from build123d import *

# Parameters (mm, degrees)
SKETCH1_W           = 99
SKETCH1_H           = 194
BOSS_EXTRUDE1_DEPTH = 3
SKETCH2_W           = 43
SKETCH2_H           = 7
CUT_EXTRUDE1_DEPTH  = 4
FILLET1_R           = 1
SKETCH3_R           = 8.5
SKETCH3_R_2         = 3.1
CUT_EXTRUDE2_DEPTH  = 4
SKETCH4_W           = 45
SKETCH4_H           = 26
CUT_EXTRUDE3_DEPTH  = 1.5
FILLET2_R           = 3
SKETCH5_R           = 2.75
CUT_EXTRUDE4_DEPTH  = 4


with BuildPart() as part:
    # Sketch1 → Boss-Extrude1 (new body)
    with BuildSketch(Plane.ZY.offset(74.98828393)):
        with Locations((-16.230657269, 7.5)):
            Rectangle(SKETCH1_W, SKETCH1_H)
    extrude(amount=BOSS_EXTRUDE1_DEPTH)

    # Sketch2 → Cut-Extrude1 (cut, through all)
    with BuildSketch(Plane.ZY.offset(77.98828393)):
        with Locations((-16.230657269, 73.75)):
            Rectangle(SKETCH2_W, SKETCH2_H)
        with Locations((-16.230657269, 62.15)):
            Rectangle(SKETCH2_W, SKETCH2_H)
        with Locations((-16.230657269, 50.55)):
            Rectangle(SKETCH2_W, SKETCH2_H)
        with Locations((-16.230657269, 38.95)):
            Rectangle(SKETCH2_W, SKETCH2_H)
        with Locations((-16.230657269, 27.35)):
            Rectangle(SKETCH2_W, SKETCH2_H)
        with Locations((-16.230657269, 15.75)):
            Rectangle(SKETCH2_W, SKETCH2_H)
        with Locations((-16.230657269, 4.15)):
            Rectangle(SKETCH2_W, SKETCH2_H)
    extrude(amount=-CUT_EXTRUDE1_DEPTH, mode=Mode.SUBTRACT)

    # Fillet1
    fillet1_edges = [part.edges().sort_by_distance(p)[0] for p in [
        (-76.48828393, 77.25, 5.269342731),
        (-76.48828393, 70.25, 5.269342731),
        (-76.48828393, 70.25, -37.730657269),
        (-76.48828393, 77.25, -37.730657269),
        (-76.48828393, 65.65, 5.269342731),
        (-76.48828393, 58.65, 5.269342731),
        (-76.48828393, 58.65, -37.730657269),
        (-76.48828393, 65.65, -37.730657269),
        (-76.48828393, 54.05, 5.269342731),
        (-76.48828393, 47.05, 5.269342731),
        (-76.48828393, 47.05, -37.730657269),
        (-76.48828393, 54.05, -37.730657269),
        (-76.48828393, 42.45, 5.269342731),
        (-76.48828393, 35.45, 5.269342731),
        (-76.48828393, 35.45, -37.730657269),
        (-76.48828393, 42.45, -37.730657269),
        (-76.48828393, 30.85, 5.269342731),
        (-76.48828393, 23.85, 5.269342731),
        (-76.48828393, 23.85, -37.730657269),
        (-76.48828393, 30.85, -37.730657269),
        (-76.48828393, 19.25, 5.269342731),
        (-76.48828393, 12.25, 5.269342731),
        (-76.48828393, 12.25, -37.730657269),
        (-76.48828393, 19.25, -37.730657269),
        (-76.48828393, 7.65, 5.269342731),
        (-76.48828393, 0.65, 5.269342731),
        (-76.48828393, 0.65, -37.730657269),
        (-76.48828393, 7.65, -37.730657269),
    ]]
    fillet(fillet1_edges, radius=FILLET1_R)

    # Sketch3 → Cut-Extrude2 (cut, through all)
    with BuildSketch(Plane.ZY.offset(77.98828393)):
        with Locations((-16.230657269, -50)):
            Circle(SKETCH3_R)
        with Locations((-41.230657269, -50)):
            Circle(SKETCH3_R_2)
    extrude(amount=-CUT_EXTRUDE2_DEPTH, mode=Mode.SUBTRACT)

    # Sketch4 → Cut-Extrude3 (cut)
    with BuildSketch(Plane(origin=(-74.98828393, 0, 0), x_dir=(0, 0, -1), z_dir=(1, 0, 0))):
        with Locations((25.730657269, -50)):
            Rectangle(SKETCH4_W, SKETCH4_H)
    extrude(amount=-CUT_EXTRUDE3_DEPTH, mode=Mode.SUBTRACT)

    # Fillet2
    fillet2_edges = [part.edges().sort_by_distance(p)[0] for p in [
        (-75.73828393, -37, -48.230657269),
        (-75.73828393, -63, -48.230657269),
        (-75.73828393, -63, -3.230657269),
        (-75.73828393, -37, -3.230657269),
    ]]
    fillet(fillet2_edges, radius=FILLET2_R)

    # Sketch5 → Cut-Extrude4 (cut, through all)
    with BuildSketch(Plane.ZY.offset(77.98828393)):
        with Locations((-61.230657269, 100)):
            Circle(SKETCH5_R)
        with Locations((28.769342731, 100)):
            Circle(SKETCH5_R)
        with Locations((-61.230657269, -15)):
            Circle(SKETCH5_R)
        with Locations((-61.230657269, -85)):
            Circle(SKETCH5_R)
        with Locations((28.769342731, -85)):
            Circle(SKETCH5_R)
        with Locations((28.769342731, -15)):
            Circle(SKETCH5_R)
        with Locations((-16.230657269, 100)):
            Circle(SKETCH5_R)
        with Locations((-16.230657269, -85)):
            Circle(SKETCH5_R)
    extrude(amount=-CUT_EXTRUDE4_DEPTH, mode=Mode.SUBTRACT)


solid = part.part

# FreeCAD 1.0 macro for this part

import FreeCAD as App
import Part
import Sketcher
from FreeCAD import Vector


def edges_at(feature, points):
    """Names of the edges that pass closest to the given points."""
    edges = feature.Shape.Edges
    near = lambda p: min(range(len(edges)), key=lambda i: edges[i].distToShape(Part.Vertex(*p))[0])
    return sorted({f"Edge{near(p) + 1}" for p in points})


def add_polygon(sketch, points):
    """Adds a closed chain of lines whose ends are joined by coincident constraints."""
    first, n = sketch.GeometryCount, len(points)
    for a, b in zip(points, points[1:] + points[:1]):
        sketch.addGeometry(Part.LineSegment(App.Vector(*a, 0), App.Vector(*b, 0)), False)
    for i in range(n):
        sketch.addConstraint(Sketcher.Constraint("Coincident", first + i, 2, first + (i + 1) % n, 1))

doc = App.newDocument("Part")
body = doc.addObject("PartDesign::Body", "Body")

sketch1 = doc.addObject("Sketcher::SketchObject", "Sketch")
body.addObject(sketch1)
sketch1.AttachmentSupport = (doc.YZ_Plane, [""])
sketch1.MapMode = "FlatFace"
sketch1.AttachmentOffset = App.Placement(Vector(0, 0, -74.988284), App.Rotation())
add_polygon(sketch1, [(104, -66), (-90, -66), (-90, 33), (104, 33)])
sketch1.addConstraint([
    Sketcher.Constraint("Horizontal", 0),
    Sketcher.Constraint("Vertical", 1),
    Sketcher.Constraint("Horizontal", 2),
    Sketcher.Constraint("Vertical", 3),
    Sketcher.Constraint("DistanceX", 0, 2, 0, 1, 194.0),
    Sketcher.Constraint("DistanceY", 1, 1, 1, 2, 99.0),
    Sketcher.Constraint("DistanceX", 0, 2, -1, 1, 89.5),
    Sketcher.Constraint("DistanceY", 0, 2, -1, 1, 65.730657),
])
pad1 = doc.addObject("PartDesign::Pad", "Pad")
body.addObject(pad1)
pad1.Profile = sketch1
pad1.Length = 3
pad1.Reversed = True

sketch2 = doc.addObject("Sketcher::SketchObject", "Sketch001")
body.addObject(sketch2)
sketch2.AttachmentSupport = (doc.YZ_Plane, [""])
sketch2.MapMode = "FlatFace"
sketch2.AttachmentOffset = App.Placement(Vector(0, 0, -77.988284), App.Rotation())
add_polygon(sketch2, [(77, -38), (70, -38), (70, 5), (77, 5)])
add_polygon(sketch2, [(66, -38), (59, -38), (59, 5), (66, 5)])
add_polygon(sketch2, [(54, -38), (47, -38), (47, 5), (54, 5)])
add_polygon(sketch2, [(42, -38), (35, -38), (35, 5), (42, 5)])
add_polygon(sketch2, [(31, -38), (24, -38), (24, 5), (31, 5)])
add_polygon(sketch2, [(19, -38), (12, -38), (12, 5), (19, 5)])
add_polygon(sketch2, [(8, -38), (1, -38), (1, 5), (8, 5)])
sketch2.addConstraint([
    Sketcher.Constraint("Horizontal", 0),
    Sketcher.Constraint("Vertical", 1),
    Sketcher.Constraint("Horizontal", 2),
    Sketcher.Constraint("Vertical", 3),
    Sketcher.Constraint("Horizontal", 4),
    Sketcher.Constraint("Vertical", 5),
    Sketcher.Constraint("Horizontal", 6),
    Sketcher.Constraint("Vertical", 7),
    Sketcher.Constraint("Horizontal", 8),
    Sketcher.Constraint("Vertical", 9),
    Sketcher.Constraint("Horizontal", 10),
    Sketcher.Constraint("Vertical", 11),
    Sketcher.Constraint("Horizontal", 12),
    Sketcher.Constraint("Vertical", 13),
    Sketcher.Constraint("Horizontal", 14),
    Sketcher.Constraint("Vertical", 15),
    Sketcher.Constraint("Horizontal", 16),
    Sketcher.Constraint("Vertical", 17),
    Sketcher.Constraint("Horizontal", 18),
    Sketcher.Constraint("Vertical", 19),
    Sketcher.Constraint("Horizontal", 20),
    Sketcher.Constraint("Vertical", 21),
    Sketcher.Constraint("Horizontal", 22),
    Sketcher.Constraint("Vertical", 23),
    Sketcher.Constraint("Horizontal", 24),
    Sketcher.Constraint("Vertical", 25),
    Sketcher.Constraint("Horizontal", 26),
    Sketcher.Constraint("Vertical", 27),
    Sketcher.Constraint("Horizontal", 3, 2, 4, 2),
    Sketcher.Constraint("Horizontal", 2, 2, 5, 2),
    Sketcher.Constraint("Horizontal", 7, 2, 8, 2),
    Sketcher.Constraint("Horizontal", 6, 2, 9, 2),
    Sketcher.Constraint("Horizontal", 11, 2, 12, 2),
    Sketcher.Constraint("Horizontal", 10, 2, 13, 2),
    Sketcher.Constraint("Horizontal", 15, 2, 16, 2),
    Sketcher.Constraint("Horizontal", 14, 2, 17, 2),
    Sketcher.Constraint("Horizontal", 19, 2, 20, 2),
    Sketcher.Constraint("Horizontal", 18, 2, 21, 2),
    Sketcher.Constraint("Horizontal", 23, 2, 24, 2),
    Sketcher.Constraint("Horizontal", 22, 2, 25, 2),
    Sketcher.Constraint("Equal", 2, 4),
    Sketcher.Constraint("Equal", 6, 8),
    Sketcher.Constraint("Equal", 10, 12),
    Sketcher.Constraint("Equal", 14, 16),
    Sketcher.Constraint("Equal", 18, 20),
    Sketcher.Constraint("Equal", 22, 24),
    Sketcher.Constraint("DistanceX", 0, 2, 0, 1, 7.0),
    Sketcher.Constraint("DistanceY", 1, 1, 1, 2, 43.0),
    Sketcher.Constraint("DistanceX", 4, 2, 0, 2, 11.6),
    Sketcher.Constraint("DistanceX", 8, 2, 4, 2, 11.6),
    Sketcher.Constraint("DistanceX", 12, 2, 8, 2, 11.6),
    Sketcher.Constraint("DistanceX", 16, 2, 12, 2, 11.6),
    Sketcher.Constraint("DistanceX", 20, 2, 16, 2, 11.6),
    Sketcher.Constraint("DistanceX", 24, 2, 20, 2, 11.6),
    Sketcher.Constraint("DistanceX", -1, 1, 0, 2, 70.25),
    Sketcher.Constraint("DistanceY", 0, 2, -1, 1, 37.730657),
])
pocket1 = doc.addObject("PartDesign::Pocket", "Pocket")
body.addObject(pocket1)
pocket1.Profile = sketch2
pocket1.Type = "ThroughAll"
pocket1.Reversed = True
doc.recompute()

fillet = doc.addObject("PartDesign::Fillet", "Fillet")
body.addObject(fillet)
fillet.Base = (pocket1, edges_at(pocket1, [
    (-76.488, 77.25, 5.269),
    (-76.488, 70.25, 5.269),
    (-76.488, 70.25, -37.731),
    (-76.488, 77.25, -37.731),
    (-76.488, 65.65, 5.269),
    (-76.488, 58.65, 5.269),
    (-76.488, 58.65, -37.731),
    (-76.488, 65.65, -37.731),
    (-76.488, 54.05, 5.269),
    (-76.488, 47.05, 5.269),
    (-76.488, 47.05, -37.731),
    (-76.488, 54.05, -37.731),
    (-76.488, 42.45, 5.269),
    (-76.488, 35.45, 5.269),
    (-76.488, 35.45, -37.731),
    (-76.488, 42.45, -37.731),
    (-76.488, 30.85, 5.269),
    (-76.488, 23.85, 5.269),
    (-76.488, 23.85, -37.731),
    (-76.488, 30.85, -37.731),
    (-76.488, 19.25, 5.269),
    (-76.488, 12.25, 5.269),
    (-76.488, 12.25, -37.731),
    (-76.488, 19.25, -37.731),
    (-76.488, 7.65, 5.269),
    (-76.488, 0.65, 5.269),
    (-76.488, 0.65, -37.731),
    (-76.488, 7.65, -37.731),
]))
fillet.Radius = 1

sketch3 = doc.addObject("Sketcher::SketchObject", "Sketch002")
body.addObject(sketch3)
sketch3.AttachmentSupport = (doc.YZ_Plane, [""])
sketch3.MapMode = "FlatFace"
sketch3.AttachmentOffset = App.Placement(Vector(0, 0, -77.988284), App.Rotation())
sketch3.addGeometry([
    Part.Circle(Vector(-50, -16.2, 0), Vector(0, 0, 1), 8.5),
    Part.Circle(Vector(-50, -41.2, 0), Vector(0, 0, 1), 3.1),
], False)
sketch3.addConstraint([
    Sketcher.Constraint("Vertical", 0, 3, 1, 3),
    Sketcher.Constraint("Diameter", 0, 17.0),
    Sketcher.Constraint("Diameter", 1, 6.2),
    Sketcher.Constraint("DistanceX", 0, 3, -1, 1, 50.0),
    Sketcher.Constraint("DistanceY", 1, 3, 0, 3, 25.0),
    Sketcher.Constraint("DistanceY", 0, 3, -1, 1, 16.230657),
])
pocket2 = doc.addObject("PartDesign::Pocket", "Pocket001")
body.addObject(pocket2)
pocket2.Profile = sketch3
pocket2.Type = "ThroughAll"
pocket2.Reversed = True

sketch4 = doc.addObject("Sketcher::SketchObject", "Sketch003")
body.addObject(sketch4)
sketch4.AttachmentSupport = (doc.YZ_Plane, [""])
sketch4.MapMode = "FlatFace"
sketch4.AttachmentOffset = App.Placement(Vector(0, 0, -74.988284), App.Rotation())
add_polygon(sketch4, [(-37, -3), (-63, -3), (-63, -48), (-37, -48)])
sketch4.addConstraint([
    Sketcher.Constraint("Horizontal", 0),
    Sketcher.Constraint("Vertical", 1),
    Sketcher.Constraint("Horizontal", 2),
    Sketcher.Constraint("Vertical", 3),
    Sketcher.Constraint("DistanceX", 0, 2, 0, 1, 26.0),
    Sketcher.Constraint("DistanceY", 1, 2, 1, 1, 45.0),
    Sketcher.Constraint("DistanceX", 0, 2, -1, 1, 63.0),
    Sketcher.Constraint("DistanceY", 0, 2, -1, 1, 3.230657),
])
pocket3 = doc.addObject("PartDesign::Pocket", "Pocket002")
body.addObject(pocket3)
pocket3.Profile = sketch4
pocket3.Length = 1.5
doc.recompute()

fillet2 = doc.addObject("PartDesign::Fillet", "Fillet001")
body.addObject(fillet2)
fillet2.Base = (pocket3, edges_at(pocket3, [
    (-75.738, -37, -48.231),
    (-75.738, -63, -48.231),
    (-75.738, -63, -3.231),
    (-75.738, -37, -3.231),
]))
fillet2.Radius = 3

sketch5 = doc.addObject("Sketcher::SketchObject", "Sketch004")
body.addObject(sketch5)
sketch5.AttachmentSupport = (doc.YZ_Plane, [""])
sketch5.MapMode = "FlatFace"
sketch5.AttachmentOffset = App.Placement(Vector(0, 0, -77.988284), App.Rotation())
sketch5.addGeometry([
    Part.Circle(Vector(100, -61.2, 0), Vector(0, 0, 1), 2.8),
    Part.Circle(Vector(100, 28.8, 0), Vector(0, 0, 1), 2.8),
    Part.Circle(Vector(-15, -61.2, 0), Vector(0, 0, 1), 2.8),
    Part.Circle(Vector(-85, -61.2, 0), Vector(0, 0, 1), 2.8),
    Part.Circle(Vector(-85, 28.8, 0), Vector(0, 0, 1), 2.8),
    Part.Circle(Vector(-15, 28.8, 0), Vector(0, 0, 1), 2.8),
    Part.Circle(Vector(100, -16.2, 0), Vector(0, 0, 1), 2.8),
    Part.Circle(Vector(-85, -16.2, 0), Vector(0, 0, 1), 2.8),
], False)
sketch5.addConstraint([
    Sketcher.Constraint("Equal", 0, 1),
    Sketcher.Constraint("Equal", 1, 2),
    Sketcher.Constraint("Equal", 2, 3),
    Sketcher.Constraint("Equal", 3, 4),
    Sketcher.Constraint("Equal", 4, 5),
    Sketcher.Constraint("Equal", 5, 6),
    Sketcher.Constraint("Equal", 6, 7),
    Sketcher.Constraint("Horizontal", 0, 3, 2, 3),
    Sketcher.Constraint("Horizontal", 2, 3, 3, 3),
    Sketcher.Constraint("Horizontal", 1, 3, 4, 3),
    Sketcher.Constraint("Horizontal", 4, 3, 5, 3),
    Sketcher.Constraint("Horizontal", 6, 3, 7, 3),
    Sketcher.Constraint("Vertical", 0, 3, 1, 3),
    Sketcher.Constraint("Vertical", 3, 3, 4, 3),
    Sketcher.Constraint("Vertical", 2, 3, 5, 3),
    Sketcher.Constraint("Vertical", 1, 3, 6, 3),
    Sketcher.Constraint("Vertical", 4, 3, 7, 3),
    Sketcher.Constraint("Diameter", 0, 5.5),
    Sketcher.Constraint("DistanceX", -1, 1, 0, 3, 100.0),
    Sketcher.Constraint("DistanceX", 2, 3, -1, 1, 15.0),
    Sketcher.Constraint("DistanceX", 3, 3, -1, 1, 85.0),
    Sketcher.Constraint("DistanceY", 0, 3, 1, 3, 90.0),
    Sketcher.Constraint("DistanceY", 0, 3, 6, 3, 45.0),
    Sketcher.Constraint("DistanceY", 0, 3, -1, 1, 61.230657),
])
pocket4 = doc.addObject("PartDesign::Pocket", "Pocket003")
body.addObject(pocket4)
pocket4.Profile = sketch5
pocket4.Type = "ThroughAll"
pocket4.Reversed = True

doc.recompute()
